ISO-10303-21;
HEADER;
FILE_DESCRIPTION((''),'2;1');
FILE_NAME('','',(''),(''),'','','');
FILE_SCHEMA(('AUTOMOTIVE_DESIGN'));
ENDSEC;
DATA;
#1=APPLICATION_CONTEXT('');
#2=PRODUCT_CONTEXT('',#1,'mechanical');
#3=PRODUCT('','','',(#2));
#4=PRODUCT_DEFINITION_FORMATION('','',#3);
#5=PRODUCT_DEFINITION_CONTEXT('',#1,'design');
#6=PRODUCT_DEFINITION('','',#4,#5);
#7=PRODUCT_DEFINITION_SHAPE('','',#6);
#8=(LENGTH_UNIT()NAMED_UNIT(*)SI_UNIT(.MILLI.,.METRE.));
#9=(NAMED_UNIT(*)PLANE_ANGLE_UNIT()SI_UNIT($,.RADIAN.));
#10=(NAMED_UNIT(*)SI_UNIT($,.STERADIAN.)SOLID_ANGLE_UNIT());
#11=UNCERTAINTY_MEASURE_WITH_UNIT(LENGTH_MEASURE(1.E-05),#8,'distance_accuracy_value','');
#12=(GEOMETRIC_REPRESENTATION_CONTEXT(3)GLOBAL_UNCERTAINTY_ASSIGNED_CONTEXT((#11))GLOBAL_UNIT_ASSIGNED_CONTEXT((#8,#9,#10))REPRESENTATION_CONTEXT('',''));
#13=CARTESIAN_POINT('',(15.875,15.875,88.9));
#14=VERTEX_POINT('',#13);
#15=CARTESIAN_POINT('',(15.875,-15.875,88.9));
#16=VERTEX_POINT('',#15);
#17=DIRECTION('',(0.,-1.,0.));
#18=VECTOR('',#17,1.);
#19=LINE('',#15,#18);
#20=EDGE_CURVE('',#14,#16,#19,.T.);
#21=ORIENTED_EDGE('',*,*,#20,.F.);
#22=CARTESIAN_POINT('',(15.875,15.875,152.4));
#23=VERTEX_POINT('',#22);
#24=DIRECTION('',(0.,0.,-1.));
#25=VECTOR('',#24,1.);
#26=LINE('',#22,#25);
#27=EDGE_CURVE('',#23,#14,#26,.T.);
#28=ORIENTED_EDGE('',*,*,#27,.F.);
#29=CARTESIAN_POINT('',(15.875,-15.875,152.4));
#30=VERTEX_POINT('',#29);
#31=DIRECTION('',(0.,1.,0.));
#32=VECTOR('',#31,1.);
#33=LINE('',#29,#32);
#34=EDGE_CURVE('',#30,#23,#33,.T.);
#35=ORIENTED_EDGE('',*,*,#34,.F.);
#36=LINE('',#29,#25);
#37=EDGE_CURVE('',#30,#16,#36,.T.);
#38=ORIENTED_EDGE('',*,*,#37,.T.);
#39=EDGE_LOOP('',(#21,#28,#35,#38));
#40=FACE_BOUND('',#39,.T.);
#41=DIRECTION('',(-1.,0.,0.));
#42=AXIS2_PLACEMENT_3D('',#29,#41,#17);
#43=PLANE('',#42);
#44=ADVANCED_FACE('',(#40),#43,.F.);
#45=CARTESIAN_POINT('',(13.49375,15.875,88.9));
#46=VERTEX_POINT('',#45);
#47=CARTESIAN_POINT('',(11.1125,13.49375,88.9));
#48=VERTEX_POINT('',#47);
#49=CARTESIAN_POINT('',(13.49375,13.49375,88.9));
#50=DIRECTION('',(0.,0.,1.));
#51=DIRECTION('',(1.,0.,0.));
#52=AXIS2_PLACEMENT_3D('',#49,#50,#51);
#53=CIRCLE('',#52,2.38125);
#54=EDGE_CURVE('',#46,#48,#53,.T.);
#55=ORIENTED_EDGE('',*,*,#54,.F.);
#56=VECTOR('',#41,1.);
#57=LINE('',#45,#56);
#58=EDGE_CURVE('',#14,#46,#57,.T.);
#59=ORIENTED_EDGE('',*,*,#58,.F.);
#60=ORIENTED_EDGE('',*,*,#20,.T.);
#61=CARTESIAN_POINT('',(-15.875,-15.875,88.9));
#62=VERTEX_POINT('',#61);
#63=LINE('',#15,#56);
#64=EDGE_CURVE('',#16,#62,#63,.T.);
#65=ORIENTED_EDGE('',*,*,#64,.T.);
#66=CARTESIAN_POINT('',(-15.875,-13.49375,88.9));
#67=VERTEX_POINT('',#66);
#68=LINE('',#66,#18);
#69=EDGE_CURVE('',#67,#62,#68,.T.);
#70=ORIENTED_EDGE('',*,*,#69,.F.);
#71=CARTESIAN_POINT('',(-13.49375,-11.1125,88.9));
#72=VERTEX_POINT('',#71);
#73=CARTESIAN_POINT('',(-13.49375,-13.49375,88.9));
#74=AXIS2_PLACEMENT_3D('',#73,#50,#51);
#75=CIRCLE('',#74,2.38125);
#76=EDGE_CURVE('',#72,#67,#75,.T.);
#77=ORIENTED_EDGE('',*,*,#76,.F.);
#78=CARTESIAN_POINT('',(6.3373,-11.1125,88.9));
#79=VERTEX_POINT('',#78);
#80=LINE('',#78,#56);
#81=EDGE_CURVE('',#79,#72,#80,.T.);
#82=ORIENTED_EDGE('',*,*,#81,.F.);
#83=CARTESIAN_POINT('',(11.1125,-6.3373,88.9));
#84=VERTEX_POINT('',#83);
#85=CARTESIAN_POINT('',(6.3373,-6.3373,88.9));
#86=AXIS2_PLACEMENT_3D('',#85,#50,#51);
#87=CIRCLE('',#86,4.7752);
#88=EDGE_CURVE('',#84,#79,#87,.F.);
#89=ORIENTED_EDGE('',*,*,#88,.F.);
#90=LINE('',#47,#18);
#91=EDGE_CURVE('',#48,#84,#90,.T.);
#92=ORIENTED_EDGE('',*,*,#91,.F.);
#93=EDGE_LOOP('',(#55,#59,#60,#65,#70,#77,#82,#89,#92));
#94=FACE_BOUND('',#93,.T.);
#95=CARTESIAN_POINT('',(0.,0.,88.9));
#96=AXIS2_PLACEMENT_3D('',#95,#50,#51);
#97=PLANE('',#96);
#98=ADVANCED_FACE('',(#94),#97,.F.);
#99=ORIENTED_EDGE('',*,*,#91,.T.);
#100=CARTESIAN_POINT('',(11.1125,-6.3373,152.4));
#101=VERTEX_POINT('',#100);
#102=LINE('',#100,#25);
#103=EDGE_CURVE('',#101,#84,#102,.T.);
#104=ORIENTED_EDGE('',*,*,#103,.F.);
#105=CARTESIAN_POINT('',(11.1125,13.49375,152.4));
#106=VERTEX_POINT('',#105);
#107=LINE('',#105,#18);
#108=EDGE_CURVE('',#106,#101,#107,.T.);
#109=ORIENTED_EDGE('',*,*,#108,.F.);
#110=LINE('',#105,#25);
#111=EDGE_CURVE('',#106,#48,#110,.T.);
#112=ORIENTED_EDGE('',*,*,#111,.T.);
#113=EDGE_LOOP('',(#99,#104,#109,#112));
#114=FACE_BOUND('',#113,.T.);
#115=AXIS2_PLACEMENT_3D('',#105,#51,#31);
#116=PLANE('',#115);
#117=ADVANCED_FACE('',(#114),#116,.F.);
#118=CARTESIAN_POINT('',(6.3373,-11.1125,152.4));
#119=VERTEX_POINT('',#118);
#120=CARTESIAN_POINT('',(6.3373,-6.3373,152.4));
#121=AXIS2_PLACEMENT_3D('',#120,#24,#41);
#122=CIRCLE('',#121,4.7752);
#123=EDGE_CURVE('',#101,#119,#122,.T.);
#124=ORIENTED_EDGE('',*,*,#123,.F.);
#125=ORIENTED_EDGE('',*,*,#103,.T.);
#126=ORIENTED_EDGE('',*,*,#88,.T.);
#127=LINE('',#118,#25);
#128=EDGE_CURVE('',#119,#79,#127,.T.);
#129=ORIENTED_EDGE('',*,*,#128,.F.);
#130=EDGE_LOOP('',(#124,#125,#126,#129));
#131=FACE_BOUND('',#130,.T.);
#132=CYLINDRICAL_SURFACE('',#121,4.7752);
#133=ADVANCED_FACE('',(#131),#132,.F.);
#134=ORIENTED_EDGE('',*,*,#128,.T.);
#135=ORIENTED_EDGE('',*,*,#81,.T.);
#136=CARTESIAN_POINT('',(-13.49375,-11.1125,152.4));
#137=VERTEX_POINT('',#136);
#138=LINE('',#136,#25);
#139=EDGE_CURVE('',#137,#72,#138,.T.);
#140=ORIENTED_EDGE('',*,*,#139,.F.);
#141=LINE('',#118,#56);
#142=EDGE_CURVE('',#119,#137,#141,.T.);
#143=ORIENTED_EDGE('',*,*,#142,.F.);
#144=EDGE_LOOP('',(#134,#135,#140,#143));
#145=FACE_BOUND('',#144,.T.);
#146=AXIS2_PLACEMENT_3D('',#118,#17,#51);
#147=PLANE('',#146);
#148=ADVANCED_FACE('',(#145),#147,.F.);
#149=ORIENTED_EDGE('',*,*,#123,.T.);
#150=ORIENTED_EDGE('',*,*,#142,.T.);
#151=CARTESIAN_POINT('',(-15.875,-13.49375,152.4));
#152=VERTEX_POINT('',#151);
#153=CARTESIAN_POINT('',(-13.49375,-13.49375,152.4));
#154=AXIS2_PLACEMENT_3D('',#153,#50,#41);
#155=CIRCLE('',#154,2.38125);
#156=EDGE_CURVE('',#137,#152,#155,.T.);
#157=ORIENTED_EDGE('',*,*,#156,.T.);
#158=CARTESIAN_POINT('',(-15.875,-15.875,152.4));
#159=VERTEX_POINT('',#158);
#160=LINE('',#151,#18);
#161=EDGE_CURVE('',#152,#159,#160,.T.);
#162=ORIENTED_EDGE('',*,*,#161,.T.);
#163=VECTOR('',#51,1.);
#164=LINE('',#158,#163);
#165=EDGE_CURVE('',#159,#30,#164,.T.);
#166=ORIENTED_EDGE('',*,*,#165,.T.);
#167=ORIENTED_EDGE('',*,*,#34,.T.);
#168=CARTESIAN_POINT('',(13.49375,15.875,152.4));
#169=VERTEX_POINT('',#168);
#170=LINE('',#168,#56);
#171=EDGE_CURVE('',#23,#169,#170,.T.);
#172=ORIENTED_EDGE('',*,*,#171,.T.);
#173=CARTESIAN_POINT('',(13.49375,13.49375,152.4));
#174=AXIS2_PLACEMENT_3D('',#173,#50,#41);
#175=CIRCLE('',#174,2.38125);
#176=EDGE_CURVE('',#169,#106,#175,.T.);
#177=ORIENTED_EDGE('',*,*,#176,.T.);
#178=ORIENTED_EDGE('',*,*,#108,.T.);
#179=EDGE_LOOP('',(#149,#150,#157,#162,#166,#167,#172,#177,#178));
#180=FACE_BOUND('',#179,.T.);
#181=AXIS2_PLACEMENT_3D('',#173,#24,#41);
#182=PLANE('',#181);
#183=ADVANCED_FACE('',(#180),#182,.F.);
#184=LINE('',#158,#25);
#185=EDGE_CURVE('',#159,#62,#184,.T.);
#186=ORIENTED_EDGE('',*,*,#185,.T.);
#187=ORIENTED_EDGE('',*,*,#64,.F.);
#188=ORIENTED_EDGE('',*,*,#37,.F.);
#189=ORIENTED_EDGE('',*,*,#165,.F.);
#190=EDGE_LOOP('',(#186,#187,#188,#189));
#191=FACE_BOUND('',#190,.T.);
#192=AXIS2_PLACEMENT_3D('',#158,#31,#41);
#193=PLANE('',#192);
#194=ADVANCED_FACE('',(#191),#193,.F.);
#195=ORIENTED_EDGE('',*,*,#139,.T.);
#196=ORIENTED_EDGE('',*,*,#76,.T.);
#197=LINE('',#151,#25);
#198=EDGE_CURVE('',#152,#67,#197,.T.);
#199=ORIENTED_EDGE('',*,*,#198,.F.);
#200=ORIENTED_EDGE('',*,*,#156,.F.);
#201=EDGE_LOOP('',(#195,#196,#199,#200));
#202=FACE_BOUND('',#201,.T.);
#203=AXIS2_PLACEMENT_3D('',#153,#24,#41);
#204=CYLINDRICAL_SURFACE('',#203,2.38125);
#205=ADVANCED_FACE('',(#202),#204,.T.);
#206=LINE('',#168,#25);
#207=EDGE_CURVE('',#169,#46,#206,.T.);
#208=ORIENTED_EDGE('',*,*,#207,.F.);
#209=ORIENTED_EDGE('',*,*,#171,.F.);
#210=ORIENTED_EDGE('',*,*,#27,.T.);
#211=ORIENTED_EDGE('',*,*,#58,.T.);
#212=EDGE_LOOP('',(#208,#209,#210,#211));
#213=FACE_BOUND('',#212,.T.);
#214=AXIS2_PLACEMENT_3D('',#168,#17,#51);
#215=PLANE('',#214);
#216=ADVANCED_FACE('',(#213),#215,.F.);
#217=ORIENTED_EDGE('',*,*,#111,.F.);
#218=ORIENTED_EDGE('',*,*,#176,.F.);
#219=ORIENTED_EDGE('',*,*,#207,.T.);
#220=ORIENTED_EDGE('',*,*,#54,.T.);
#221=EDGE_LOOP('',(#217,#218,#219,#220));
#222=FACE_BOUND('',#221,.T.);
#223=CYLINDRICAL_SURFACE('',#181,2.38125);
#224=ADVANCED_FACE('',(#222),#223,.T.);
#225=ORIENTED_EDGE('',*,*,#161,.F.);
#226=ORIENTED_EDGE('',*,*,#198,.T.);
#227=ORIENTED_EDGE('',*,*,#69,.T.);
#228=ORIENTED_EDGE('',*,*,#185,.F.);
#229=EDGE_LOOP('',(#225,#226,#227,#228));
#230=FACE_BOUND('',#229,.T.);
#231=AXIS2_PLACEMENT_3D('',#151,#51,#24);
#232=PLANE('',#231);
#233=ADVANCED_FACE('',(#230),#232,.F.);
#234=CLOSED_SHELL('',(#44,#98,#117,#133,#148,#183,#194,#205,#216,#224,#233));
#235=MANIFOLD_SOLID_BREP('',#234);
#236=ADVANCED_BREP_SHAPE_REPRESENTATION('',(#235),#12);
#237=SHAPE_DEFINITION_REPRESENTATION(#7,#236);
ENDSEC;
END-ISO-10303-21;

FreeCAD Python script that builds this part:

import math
import FreeCAD as App
import Part
import Sketcher
Q = App.Units.Quantity


def add_polygon(sketch, points):
    """Adds a closed chain of lines whose ends are joined by coincident constraints."""
    first, n = sketch.GeometryCount, len(points)
    for a, b in zip(points, points[1:] + points[:1]):
        sketch.addGeometry(Part.LineSegment(App.Vector(*a, 0), App.Vector(*b, 0)), False)
    for i in range(n):
        sketch.addConstraint(Sketcher.Constraint("Coincident", first + i, 2, first + (i + 1) % n, 1))

doc = App.newDocument("Part")
params = doc.addObject("Spreadsheet::Sheet", "Params")
for row, (alias, value) in enumerate([
    ("sketch1_radius", "0.09375 in"),
    ("sketch1_radius2", "0.188 in"),
    ("sketch1_width", "1.25 in"),
    ("pad1_length", "12 in"),
    ("pocket1_length", "9.5 in"),
], start=1):
    params.set(f"A{row}", alias)
    params.set(f"B{row}", "=" + value)
    params.setAlias(f"B{row}", alias)

body = doc.addObject("PartDesign::Body", "Body")

sketch1 = doc.addObject("Sketcher::SketchObject", "Sketch")
body.addObject(sketch1)
sketch1.AttachmentSupport = (doc.XY_Plane, [""])
sketch1.MapMode = "FlatFace"
sketch1.addGeometry([
    Part.LineSegment(App.Vector(-15.9, -15.9, 0), App.Vector(15.9, -15.9, 0)),
    Part.LineSegment(App.Vector(15.9, -15.9, 0), App.Vector(15.9, 15.9, 0)),
    Part.LineSegment(App.Vector(15.9, 15.9, 0), App.Vector(13.5, 15.9, 0)),
    Part.ArcOfCircle(Part.Circle(App.Vector(13.5, 13.5, 0), App.Vector(0, 0, 1), 2.4), math.radians(90), math.radians(180)),
    Part.LineSegment(App.Vector(11.1, 13.5, 0), App.Vector(11.1, -6.3, 0)),
    Part.ArcOfCircle(Part.Circle(App.Vector(6.3, -6.3, 0), App.Vector(0, 0, 1), 4.8), math.radians(-90), math.radians(0)),
    Part.LineSegment(App.Vector(6.3, -11.1, 0), App.Vector(-13.5, -11.1, 0)),
    Part.ArcOfCircle(Part.Circle(App.Vector(-13.5, -13.5, 0), App.Vector(0, 0, 1), 2.4), math.radians(90), math.radians(180)),
    Part.LineSegment(App.Vector(-15.9, -13.5, 0), App.Vector(-15.9, -15.9, 0)),
], False)
sketch1.addConstraint([
    Sketcher.Constraint("Coincident", 0, 2, 1, 1),
    Sketcher.Constraint("Coincident", 1, 2, 2, 1),
    Sketcher.Constraint("Tangent", 2, 2, 3, 1),
    Sketcher.Constraint("Tangent", 3, 2, 4, 1),
    Sketcher.Constraint("Tangent", 4, 2, 5, 2),
    Sketcher.Constraint("Tangent", 5, 1, 6, 1),
    Sketcher.Constraint("Tangent", 6, 2, 7, 1),
    Sketcher.Constraint("Tangent", 7, 2, 8, 1),
    Sketcher.Constraint("Coincident", 8, 2, 0, 1),
    Sketcher.Constraint("Horizontal", 0),
    Sketcher.Constraint("Vertical", 1),
    Sketcher.Constraint("Horizontal", 2),
    Sketcher.Constraint("Vertical", 4),
    Sketcher.Constraint("Horizontal", 6),
    Sketcher.Constraint("Vertical", 8),
    Sketcher.Constraint("Equal", 3, 7),
    Sketcher.Constraint("Symmetric", 3, 3, 7, 3, -1, 1),
    Sketcher.Constraint("Symmetric", 1, 2, 8, 2, -1, 1),
    Sketcher.Constraint("Equal", 0, 1),
    Sketcher.Constraint("Radius", 3, Q("0.09375 in")),
    Sketcher.Constraint("Radius", 5, Q("0.188 in")),
    Sketcher.Constraint("DistanceX", 0, 1, 0, 2, Q("1.25 in")),
])
sketch1.setExpression("Constraints[19]", "Params.sketch1_radius")
sketch1.setExpression("Constraints[20]", "Params.sketch1_radius2")
sketch1.setExpression("Constraints[21]", "Params.sketch1_width")
pad1 = doc.addObject("PartDesign::Pad", "Pad")
body.addObject(pad1)
pad1.Profile = sketch1
pad1.setExpression("Length", "Params.pad1_length")
pad1.Midplane = True

sketch2 = doc.addObject("Sketcher::SketchObject", "Sketch001")
body.addObject(sketch2)
sketch2.AttachmentSupport = (doc.XY_Plane, [""])
sketch2.MapMode = "FlatFace"
sketch2.AttachmentOffset = App.Placement(App.Vector(0, 0, -6 * 25.4), App.Rotation())
add_polygon(sketch2, [(16, 17), (16, -16), (-17, -16), (-17, 17)])
sketch2.addConstraint([
    Sketcher.Constraint("Vertical", 0),
    Sketcher.Constraint("Horizontal", 1),
    Sketcher.Constraint("Vertical", 2),
    Sketcher.Constraint("Horizontal", 3),
    Sketcher.Constraint("DistanceX", -1, 1, 0, 2, Q("0.625 in")),
    Sketcher.Constraint("DistanceY", 0, 2, -1, 1, Q("0.625 in")),
    Sketcher.Constraint("DistanceY", 0, 2, 0, 1, Q("33.339289 mm")),
    Sketcher.Constraint("DistanceX", 1, 2, 1, 1, Q("32.781957 mm")),
])
pocket1 = doc.addObject("PartDesign::Pocket", "Pocket")
body.addObject(pocket1)
pocket1.Profile = sketch2
pocket1.setExpression("Length", "Params.pocket1_length")
pocket1.Reversed = True

doc.recompute()
